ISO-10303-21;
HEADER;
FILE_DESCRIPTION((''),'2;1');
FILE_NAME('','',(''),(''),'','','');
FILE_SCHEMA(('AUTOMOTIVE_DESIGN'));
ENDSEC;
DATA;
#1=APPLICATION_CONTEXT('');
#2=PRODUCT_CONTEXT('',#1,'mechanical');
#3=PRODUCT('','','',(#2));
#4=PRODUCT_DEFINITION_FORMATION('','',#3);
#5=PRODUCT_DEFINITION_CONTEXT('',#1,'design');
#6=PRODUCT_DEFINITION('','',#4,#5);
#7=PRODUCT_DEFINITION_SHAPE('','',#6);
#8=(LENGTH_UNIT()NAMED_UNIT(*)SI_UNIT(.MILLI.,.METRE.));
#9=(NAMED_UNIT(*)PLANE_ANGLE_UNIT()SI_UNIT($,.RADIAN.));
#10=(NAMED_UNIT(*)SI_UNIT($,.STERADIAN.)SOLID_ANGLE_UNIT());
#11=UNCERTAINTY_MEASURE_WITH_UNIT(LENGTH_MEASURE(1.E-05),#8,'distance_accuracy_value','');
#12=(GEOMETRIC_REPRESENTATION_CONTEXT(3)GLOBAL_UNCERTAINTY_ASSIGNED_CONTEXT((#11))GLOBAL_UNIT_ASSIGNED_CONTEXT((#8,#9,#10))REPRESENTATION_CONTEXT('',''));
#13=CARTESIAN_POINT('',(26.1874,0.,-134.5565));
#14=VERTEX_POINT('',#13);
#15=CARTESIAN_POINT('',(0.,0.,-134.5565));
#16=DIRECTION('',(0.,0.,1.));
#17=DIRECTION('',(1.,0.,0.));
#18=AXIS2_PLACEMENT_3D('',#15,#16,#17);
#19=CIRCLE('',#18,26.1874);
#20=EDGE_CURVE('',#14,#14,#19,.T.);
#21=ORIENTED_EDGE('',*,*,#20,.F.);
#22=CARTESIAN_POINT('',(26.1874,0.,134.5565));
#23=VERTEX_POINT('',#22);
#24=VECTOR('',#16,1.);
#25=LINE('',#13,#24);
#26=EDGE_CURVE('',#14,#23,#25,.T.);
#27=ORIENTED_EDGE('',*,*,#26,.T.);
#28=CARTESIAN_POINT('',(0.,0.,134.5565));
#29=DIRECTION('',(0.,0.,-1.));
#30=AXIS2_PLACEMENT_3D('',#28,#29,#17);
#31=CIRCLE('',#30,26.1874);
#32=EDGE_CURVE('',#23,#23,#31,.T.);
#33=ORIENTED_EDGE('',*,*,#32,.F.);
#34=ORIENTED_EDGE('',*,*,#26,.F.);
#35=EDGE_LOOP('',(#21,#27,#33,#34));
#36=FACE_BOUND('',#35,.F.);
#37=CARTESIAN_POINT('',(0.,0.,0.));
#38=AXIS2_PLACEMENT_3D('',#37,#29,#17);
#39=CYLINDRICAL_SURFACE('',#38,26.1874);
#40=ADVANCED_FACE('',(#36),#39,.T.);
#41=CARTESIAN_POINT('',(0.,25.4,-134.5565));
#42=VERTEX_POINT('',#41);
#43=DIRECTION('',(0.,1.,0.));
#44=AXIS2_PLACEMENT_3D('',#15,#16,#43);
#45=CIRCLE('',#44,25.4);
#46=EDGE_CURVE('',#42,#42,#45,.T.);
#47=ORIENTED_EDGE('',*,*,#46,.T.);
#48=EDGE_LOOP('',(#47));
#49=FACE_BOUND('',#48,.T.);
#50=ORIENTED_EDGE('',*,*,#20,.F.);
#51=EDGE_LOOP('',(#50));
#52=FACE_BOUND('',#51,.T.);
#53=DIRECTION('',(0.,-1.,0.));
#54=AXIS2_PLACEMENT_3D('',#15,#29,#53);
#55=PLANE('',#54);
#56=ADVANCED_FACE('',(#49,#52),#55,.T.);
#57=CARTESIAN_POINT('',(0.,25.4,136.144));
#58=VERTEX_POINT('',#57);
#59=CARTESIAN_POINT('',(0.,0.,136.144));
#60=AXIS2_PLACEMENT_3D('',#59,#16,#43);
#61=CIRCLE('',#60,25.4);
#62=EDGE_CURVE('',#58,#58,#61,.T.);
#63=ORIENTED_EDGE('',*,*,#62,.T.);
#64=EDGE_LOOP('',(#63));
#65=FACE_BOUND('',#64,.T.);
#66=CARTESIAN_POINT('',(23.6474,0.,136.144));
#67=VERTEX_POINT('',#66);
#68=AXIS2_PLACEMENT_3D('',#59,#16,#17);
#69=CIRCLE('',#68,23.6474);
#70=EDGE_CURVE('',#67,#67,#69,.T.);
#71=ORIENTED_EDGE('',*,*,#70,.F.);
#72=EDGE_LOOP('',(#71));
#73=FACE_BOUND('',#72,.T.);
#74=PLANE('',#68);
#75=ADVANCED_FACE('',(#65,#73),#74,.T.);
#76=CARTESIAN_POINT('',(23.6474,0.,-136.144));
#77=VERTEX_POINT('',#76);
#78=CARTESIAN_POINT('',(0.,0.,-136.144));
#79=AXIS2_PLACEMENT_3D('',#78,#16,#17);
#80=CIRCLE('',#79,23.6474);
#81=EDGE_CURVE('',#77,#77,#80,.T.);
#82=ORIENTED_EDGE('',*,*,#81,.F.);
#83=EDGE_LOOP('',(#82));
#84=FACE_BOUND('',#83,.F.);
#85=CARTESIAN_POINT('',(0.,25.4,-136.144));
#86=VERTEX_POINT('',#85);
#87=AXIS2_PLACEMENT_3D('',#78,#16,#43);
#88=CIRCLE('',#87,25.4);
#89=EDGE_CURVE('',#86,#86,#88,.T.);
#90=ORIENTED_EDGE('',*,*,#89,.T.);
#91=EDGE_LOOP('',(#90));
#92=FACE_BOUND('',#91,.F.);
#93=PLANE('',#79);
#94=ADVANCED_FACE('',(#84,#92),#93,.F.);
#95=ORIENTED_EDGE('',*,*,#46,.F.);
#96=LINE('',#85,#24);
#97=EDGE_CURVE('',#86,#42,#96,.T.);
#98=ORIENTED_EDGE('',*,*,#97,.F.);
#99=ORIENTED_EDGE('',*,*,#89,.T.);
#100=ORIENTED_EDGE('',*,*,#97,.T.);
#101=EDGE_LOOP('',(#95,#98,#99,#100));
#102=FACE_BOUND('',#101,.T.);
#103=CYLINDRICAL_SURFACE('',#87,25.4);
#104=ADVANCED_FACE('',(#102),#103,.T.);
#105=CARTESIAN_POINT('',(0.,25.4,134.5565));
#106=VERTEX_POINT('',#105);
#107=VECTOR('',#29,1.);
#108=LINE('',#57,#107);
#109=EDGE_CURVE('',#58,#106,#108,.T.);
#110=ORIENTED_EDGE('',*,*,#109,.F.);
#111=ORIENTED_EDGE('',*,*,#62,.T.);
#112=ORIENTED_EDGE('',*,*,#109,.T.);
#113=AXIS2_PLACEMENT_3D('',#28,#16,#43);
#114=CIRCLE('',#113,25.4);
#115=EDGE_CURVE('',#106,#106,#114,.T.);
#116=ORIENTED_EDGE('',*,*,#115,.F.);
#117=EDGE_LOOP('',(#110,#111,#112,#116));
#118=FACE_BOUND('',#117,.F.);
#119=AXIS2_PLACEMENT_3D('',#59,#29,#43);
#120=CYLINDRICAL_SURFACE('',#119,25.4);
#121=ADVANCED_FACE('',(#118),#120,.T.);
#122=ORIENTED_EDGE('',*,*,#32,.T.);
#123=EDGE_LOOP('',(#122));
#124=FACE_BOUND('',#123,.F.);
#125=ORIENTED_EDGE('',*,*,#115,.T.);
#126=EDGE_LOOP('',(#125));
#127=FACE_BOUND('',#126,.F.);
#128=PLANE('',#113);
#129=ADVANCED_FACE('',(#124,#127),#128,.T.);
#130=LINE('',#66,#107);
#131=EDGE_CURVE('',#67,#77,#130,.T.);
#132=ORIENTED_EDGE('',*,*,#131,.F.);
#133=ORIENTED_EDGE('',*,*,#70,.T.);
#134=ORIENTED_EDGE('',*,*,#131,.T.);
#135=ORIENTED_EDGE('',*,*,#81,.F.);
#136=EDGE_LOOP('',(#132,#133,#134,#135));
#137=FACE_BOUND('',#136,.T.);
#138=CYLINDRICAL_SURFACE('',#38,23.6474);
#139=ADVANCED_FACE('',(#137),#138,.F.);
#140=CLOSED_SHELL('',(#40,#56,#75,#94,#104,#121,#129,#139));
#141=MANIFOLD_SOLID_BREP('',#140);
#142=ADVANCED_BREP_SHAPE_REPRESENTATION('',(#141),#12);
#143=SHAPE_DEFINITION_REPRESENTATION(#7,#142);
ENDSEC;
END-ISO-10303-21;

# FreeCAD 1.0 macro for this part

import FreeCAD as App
import Part
import Sketcher
Q = App.Units.Quantity


def add_polygon(sketch, points):
    """Adds a closed chain of lines whose ends are joined by coincident constraints."""
    first, n = sketch.GeometryCount, len(points)
    for a, b in zip(points, points[1:] + points[:1]):
        sketch.addGeometry(Part.LineSegment(App.Vector(*a, 0), App.Vector(*b, 0)), False)
    for i in range(n):
        sketch.addConstraint(Sketcher.Constraint("Coincident", first + i, 2, first + (i + 1) % n, 1))

doc = App.newDocument("Part")
body = doc.addObject("PartDesign::Body", "Body")

sketch1 = body.newObject("Sketcher::SketchObject", "Sketch")
sketch1.AttachmentSupport = (doc.getObject("XY_Plane"), [""])
sketch1.MapMode = "FlatFace"
sketch1.addGeometry(Part.Circle(App.Vector(0, 0, 0), App.Vector(0, 0, 1), 26), False)
sketch1.addGeometry(Part.Circle(App.Vector(0, 0, 0), App.Vector(0, 0, 1), 24), False)
sketch1.addConstraint(Sketcher.Constraint("Coincident", 0, 3, -1, 1))
sketch1.addConstraint(Sketcher.Constraint("Coincident", 1, 3, -1, 1))
sketch1.addConstraint(Sketcher.Constraint("Diameter", 0, Q("2.062 in")))
sketch1.addConstraint(Sketcher.Constraint("Diameter", 1, Q("1.862 in")))
pad1 = body.newObject("PartDesign::Pad", "Pad")
pad1.Profile = sketch1
pad1.Length = Q("10.72 in")
pad1.Midplane = True

sketch2 = body.newObject("Sketcher::SketchObject", "Sketch001")
sketch2.AttachmentSupport = (doc.getObject("YZ_Plane"), [""])
sketch2.MapMode = "FlatFace"
add_polygon(sketch2, [(26.2, 136.1), (25.4, 136.1), (25.4, 134.6), (26.2, 134.6)])
sketch2.addConstraint(Sketcher.Constraint("Horizontal", 0))
sketch2.addConstraint(Sketcher.Constraint("Vertical", 1))
sketch2.addConstraint(Sketcher.Constraint("Horizontal", 2))
sketch2.addConstraint(Sketcher.Constraint("Vertical", 3))
sketch2.addConstraint(Sketcher.Constraint("DistanceX", 0, 2, 0, 1, Q("0.031 in")))
sketch2.addConstraint(Sketcher.Constraint("DistanceY", 1, 2, 1, 1, Q("0.0625 in")))
sketch2.addConstraint(Sketcher.Constraint("DistanceX", -1, 1, 0, 2, Q("1 in")))
sketch2.addConstraint(Sketcher.Constraint("DistanceY", -1, 1, 0, 2, Q("5.36 in")))
groove = body.newObject("PartDesign::Groove", "Groove")
groove.Profile = sketch2
groove.ReferenceAxis = (sketch2, ["V_Axis"])
groove.Angle = 360
doc.recompute()

mirrored = body.newObject("PartDesign::Mirrored", "Mirrored")
mirrored.Originals = [groove]
mirrored.MirrorPlane = (doc.getObject("XY_Plane"), [""])
body.Tip = mirrored

doc.recompute()
